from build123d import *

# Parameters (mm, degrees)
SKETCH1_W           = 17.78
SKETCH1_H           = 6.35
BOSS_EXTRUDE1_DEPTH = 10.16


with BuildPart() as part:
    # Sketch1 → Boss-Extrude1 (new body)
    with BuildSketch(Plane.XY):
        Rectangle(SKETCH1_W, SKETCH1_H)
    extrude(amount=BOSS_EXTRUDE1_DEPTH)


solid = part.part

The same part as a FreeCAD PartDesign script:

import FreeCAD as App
import Part
import Sketcher
Q = App.Units.Quantity


def add_polygon(sketch, points):
    """Adds a closed chain of lines whose ends are joined by coincident constraints."""
    first, n = sketch.GeometryCount, len(points)
    for a, b in zip(points, points[1:] + points[:1]):
        sketch.addGeometry(Part.LineSegment(App.Vector(*a, 0), App.Vector(*b, 0)), False)
    for i in range(n):
        sketch.addConstraint(Sketcher.Constraint("Coincident", first + i, 2, first + (i + 1) % n, 1))

doc = App.newDocument("Part")
body = doc.addObject("PartDesign::Body", "Body")

# Sketch on XY plane
sketch1 = body.newObject("Sketcher::SketchObject", "Sketch")
sketch1.AttachmentSupport = (doc.getObject("XY_Plane"), [""])
sketch1.MapMode = "FlatFace"
add_polygon(sketch1, [(-8.89, 3.175), (-8.89, -3.175), (8.89, -3.175), (8.89, 3.175)])  # lines 0-3
sketch1.addConstraint([
    Sketcher.Constraint("Vertical", 0),
    Sketcher.Constraint("Horizontal", 1),
    Sketcher.Constraint("Vertical", 2),
    Sketcher.Constraint("Horizontal", 3),
    Sketcher.Constraint("Symmetric", 0, 2, 2, 2, -1, 1),
    Sketcher.Constraint("DistanceX", 1, 1, 1, 2, Q("0.7 in")),
    Sketcher.Constraint("DistanceY", 0, 2, 0, 1, Q("0.25 in")),
])
pad1 = body.newObject("PartDesign::Pad", "Pad")
pad1.Profile = sketch1
pad1.Length = Q("0.4 in")

doc.recompute()
